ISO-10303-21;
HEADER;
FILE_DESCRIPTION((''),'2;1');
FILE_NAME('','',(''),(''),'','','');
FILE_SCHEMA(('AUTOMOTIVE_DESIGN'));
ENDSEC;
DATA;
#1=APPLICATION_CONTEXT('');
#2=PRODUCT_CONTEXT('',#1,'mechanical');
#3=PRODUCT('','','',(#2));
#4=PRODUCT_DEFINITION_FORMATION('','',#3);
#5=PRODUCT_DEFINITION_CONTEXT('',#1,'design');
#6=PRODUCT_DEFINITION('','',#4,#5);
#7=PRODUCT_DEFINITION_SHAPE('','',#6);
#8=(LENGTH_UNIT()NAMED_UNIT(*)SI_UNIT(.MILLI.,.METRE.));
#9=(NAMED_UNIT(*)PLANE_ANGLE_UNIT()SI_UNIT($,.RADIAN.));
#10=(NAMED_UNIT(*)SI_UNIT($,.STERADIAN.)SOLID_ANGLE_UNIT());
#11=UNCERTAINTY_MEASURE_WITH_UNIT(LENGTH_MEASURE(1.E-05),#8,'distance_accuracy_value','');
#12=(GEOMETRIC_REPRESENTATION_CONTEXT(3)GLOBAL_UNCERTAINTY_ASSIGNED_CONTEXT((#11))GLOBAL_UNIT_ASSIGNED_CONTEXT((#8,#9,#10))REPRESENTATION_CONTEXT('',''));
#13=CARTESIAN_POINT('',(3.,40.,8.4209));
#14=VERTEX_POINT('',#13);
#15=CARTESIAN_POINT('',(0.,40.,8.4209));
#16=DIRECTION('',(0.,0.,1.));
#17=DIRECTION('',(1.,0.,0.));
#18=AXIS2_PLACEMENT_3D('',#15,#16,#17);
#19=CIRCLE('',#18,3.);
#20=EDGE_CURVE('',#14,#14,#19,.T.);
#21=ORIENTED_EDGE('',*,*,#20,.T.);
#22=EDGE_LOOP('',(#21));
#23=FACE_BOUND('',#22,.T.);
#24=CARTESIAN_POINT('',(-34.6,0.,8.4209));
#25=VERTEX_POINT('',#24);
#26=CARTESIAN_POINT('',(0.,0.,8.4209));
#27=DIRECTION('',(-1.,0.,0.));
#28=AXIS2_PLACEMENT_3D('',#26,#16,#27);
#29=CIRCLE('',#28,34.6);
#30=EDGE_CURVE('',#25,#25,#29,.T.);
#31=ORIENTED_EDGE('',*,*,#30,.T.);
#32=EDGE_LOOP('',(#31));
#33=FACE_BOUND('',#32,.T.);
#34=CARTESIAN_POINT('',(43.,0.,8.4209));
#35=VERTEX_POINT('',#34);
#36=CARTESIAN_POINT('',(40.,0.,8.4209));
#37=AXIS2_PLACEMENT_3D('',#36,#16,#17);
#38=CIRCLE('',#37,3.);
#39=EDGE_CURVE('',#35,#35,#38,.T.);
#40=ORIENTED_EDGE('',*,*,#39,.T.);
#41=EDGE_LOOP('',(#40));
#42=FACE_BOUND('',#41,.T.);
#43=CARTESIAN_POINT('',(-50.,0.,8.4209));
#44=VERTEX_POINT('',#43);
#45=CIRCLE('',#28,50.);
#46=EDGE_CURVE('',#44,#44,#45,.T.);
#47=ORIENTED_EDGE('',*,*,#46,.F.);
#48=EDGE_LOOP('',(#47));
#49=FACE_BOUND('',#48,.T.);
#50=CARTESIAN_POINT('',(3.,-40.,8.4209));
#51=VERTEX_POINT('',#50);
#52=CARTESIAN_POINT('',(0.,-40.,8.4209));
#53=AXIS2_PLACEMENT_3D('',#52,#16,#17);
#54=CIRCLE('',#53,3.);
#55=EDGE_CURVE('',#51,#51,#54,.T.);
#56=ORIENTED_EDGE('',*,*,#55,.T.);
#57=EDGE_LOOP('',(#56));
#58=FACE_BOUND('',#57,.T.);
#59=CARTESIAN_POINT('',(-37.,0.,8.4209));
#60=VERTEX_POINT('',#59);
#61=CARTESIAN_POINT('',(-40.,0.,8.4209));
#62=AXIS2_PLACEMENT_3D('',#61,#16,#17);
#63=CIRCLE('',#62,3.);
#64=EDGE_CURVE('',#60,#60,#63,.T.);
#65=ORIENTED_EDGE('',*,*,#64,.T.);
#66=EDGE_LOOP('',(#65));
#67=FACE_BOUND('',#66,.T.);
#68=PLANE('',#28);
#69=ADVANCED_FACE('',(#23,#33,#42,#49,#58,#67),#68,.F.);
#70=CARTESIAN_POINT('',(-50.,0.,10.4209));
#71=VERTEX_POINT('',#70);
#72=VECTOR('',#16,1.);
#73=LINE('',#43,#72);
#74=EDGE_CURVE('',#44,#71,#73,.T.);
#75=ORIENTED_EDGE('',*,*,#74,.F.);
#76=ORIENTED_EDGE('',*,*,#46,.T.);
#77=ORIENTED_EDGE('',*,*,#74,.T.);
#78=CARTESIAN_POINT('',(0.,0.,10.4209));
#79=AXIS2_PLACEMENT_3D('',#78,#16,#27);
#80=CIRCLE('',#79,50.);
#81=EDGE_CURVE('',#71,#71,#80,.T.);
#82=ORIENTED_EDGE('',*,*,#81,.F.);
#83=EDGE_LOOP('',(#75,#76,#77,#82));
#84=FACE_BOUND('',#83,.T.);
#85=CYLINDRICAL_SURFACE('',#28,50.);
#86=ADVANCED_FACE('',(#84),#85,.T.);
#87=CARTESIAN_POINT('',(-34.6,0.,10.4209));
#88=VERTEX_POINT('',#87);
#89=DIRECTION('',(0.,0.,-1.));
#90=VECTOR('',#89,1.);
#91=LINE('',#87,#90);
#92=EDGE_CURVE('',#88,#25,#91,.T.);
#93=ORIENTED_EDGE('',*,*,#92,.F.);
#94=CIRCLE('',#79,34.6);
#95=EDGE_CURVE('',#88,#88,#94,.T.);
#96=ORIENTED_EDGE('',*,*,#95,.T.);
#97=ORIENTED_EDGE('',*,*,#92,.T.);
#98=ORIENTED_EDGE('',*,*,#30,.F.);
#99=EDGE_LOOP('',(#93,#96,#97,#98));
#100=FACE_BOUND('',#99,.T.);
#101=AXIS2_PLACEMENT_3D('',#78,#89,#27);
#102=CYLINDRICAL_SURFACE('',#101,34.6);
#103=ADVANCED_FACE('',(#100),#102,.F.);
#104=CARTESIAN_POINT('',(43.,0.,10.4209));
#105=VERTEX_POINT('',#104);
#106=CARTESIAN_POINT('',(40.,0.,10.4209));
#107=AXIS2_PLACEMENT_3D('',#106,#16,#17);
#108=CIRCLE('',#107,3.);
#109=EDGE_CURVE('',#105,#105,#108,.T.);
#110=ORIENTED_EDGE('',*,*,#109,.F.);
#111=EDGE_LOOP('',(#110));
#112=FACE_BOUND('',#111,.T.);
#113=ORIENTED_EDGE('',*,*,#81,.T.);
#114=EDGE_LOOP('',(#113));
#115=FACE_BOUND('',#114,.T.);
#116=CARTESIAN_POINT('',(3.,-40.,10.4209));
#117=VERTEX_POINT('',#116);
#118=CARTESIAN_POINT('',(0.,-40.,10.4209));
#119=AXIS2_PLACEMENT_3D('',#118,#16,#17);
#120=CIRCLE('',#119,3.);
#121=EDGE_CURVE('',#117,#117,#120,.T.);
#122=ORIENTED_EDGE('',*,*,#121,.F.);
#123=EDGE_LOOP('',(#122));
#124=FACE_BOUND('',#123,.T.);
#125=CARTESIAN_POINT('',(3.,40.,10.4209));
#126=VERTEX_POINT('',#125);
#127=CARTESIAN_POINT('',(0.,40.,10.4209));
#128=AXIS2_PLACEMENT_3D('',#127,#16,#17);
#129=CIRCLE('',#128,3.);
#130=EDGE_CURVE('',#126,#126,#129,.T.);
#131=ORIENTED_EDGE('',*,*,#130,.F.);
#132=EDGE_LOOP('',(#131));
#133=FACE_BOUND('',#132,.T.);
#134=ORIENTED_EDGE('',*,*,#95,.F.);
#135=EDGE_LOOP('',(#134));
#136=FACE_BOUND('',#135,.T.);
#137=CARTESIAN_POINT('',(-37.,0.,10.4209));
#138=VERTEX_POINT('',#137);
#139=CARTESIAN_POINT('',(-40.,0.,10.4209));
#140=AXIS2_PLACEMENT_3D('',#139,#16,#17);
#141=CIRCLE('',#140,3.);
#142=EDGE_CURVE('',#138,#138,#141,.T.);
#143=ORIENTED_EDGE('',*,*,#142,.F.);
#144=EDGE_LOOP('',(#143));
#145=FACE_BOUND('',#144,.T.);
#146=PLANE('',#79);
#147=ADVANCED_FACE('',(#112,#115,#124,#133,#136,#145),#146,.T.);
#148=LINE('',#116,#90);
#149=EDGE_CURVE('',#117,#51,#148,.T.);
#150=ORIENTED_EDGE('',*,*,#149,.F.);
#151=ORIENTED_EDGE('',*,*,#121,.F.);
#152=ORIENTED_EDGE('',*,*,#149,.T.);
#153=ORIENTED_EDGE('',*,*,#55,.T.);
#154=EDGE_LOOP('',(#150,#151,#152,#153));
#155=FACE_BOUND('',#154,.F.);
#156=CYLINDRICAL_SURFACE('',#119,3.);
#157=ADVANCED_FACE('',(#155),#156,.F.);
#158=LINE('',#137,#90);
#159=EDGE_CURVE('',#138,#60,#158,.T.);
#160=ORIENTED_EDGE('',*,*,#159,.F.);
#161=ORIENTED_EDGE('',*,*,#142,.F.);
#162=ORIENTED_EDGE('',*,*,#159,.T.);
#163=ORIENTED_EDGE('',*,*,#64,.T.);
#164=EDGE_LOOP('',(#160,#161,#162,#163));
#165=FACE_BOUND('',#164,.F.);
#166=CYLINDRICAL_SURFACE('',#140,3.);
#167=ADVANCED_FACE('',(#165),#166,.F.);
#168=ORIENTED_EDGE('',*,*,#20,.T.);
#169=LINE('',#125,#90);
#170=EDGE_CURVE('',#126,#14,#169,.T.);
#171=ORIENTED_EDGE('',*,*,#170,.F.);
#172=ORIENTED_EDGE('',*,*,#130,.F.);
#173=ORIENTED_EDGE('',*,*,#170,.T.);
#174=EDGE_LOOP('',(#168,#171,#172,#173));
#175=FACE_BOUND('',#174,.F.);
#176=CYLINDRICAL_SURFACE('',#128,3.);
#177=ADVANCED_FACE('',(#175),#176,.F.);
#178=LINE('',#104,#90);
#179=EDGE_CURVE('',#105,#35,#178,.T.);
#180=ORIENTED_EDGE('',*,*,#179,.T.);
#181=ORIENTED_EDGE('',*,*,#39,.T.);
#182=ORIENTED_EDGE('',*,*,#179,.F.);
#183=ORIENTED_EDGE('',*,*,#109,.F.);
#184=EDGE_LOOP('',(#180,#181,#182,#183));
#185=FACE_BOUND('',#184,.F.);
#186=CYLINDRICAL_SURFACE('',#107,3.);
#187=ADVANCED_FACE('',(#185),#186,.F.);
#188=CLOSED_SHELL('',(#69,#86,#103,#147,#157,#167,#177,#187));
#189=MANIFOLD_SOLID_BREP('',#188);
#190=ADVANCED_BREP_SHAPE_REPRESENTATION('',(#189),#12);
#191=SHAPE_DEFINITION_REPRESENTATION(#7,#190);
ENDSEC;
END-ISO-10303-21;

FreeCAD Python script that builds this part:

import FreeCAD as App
import Part
import Sketcher

doc = App.newDocument("Part")
body = doc.addObject("PartDesign::Body", "Body")

# Sketch on XZ plane
sketch1 = body.newObject("Sketcher::SketchObject", "Sketch")
sketch1.AttachmentSupport = (doc.getObject("XZ_Plane"), [""])
sketch1.MapMode = "FlatFace"
sketch1.addGeometry([
    Part.LineSegment(App.Vector(-50, 10.4, 0), App.Vector(-34.6, 10.4, 0)),
    Part.LineSegment(App.Vector(-34.6, 10.4, 0), App.Vector(-34.6, 8.4, 0)),
    Part.LineSegment(App.Vector(-34.6, 8.4, 0), App.Vector(-50, 8.4, 0)),
    Part.LineSegment(App.Vector(-50, 8.4, 0), App.Vector(-50, 10.4, 0)),
], False)
sketch1.addConstraint([
    Sketcher.Constraint("Coincident", 0, 2, 1, 1),
    Sketcher.Constraint("Coincident", 1, 2, 2, 1),
    Sketcher.Constraint("Coincident", 2, 2, 3, 1),
    Sketcher.Constraint("Coincident", 3, 2, 0, 1),
    Sketcher.Constraint("Horizontal", 0),
    Sketcher.Constraint("Vertical", 1),
    Sketcher.Constraint("Horizontal", 2),
    Sketcher.Constraint("Vertical", 3),
    Sketcher.Constraint("DistanceY", 1, 2, 1, 1, 2.0),
    Sketcher.Constraint("DistanceX", 0, 1, 0, 2, 15.4),
    Sketcher.Constraint("DistanceX", 0, 2, -1, 1, 34.6),
    Sketcher.Constraint("DistanceY", -1, 1, 0, 2, 10.421),
])
revolution = body.newObject("PartDesign::Revolution", "Revolution")
revolution.Profile = sketch1
revolution.ReferenceAxis = (sketch1, ["V_Axis"])
revolution.Angle = 360

# Sketch on XY plane
sketch2 = body.newObject("Sketcher::SketchObject", "Sketch001")
sketch2.AttachmentSupport = (doc.getObject("XY_Plane"), [""])
sketch2.MapMode = "FlatFace"
sketch2.AttachmentOffset = App.Placement(App.Vector(0, 0, 10.4209), App.Rotation())
sketch2.addGeometry([
    Part.Circle(App.Vector(0, 40, 0), App.Vector(0, 0, 1), 3),
    Part.Circle(App.Vector(40, 0, 0), App.Vector(0, 0, 1), 3),
    Part.Circle(App.Vector(0, -40, 0), App.Vector(0, 0, 1), 3),
    Part.Circle(App.Vector(-40, 0, 0), App.Vector(0, 0, 1), 3),
], False)
sketch2.addConstraint([
    Sketcher.Constraint("Equal", 0, 1),
    Sketcher.Constraint("Equal", 1, 2),
    Sketcher.Constraint("Equal", 2, 3),
    Sketcher.Constraint("Symmetric", 0, 3, 2, 3, -1, 1),
    Sketcher.Constraint("Symmetric", 1, 3, 3, 3, -1, 1),
    Sketcher.Constraint("PointOnObject", 0, 3, -2),
    Sketcher.Constraint("PointOnObject", 1, 3, -1),
    Sketcher.Constraint("Diameter", 0, 6.0),
    Sketcher.Constraint("DistanceY", -1, 1, 0, 3, 40.0),
    Sketcher.Constraint("DistanceX", -1, 1, 1, 3, 40.0),
])
pocket1 = body.newObject("PartDesign::Pocket", "Pocket")
pocket1.Profile = sketch2
pocket1.Length = 2

doc.recompute()
